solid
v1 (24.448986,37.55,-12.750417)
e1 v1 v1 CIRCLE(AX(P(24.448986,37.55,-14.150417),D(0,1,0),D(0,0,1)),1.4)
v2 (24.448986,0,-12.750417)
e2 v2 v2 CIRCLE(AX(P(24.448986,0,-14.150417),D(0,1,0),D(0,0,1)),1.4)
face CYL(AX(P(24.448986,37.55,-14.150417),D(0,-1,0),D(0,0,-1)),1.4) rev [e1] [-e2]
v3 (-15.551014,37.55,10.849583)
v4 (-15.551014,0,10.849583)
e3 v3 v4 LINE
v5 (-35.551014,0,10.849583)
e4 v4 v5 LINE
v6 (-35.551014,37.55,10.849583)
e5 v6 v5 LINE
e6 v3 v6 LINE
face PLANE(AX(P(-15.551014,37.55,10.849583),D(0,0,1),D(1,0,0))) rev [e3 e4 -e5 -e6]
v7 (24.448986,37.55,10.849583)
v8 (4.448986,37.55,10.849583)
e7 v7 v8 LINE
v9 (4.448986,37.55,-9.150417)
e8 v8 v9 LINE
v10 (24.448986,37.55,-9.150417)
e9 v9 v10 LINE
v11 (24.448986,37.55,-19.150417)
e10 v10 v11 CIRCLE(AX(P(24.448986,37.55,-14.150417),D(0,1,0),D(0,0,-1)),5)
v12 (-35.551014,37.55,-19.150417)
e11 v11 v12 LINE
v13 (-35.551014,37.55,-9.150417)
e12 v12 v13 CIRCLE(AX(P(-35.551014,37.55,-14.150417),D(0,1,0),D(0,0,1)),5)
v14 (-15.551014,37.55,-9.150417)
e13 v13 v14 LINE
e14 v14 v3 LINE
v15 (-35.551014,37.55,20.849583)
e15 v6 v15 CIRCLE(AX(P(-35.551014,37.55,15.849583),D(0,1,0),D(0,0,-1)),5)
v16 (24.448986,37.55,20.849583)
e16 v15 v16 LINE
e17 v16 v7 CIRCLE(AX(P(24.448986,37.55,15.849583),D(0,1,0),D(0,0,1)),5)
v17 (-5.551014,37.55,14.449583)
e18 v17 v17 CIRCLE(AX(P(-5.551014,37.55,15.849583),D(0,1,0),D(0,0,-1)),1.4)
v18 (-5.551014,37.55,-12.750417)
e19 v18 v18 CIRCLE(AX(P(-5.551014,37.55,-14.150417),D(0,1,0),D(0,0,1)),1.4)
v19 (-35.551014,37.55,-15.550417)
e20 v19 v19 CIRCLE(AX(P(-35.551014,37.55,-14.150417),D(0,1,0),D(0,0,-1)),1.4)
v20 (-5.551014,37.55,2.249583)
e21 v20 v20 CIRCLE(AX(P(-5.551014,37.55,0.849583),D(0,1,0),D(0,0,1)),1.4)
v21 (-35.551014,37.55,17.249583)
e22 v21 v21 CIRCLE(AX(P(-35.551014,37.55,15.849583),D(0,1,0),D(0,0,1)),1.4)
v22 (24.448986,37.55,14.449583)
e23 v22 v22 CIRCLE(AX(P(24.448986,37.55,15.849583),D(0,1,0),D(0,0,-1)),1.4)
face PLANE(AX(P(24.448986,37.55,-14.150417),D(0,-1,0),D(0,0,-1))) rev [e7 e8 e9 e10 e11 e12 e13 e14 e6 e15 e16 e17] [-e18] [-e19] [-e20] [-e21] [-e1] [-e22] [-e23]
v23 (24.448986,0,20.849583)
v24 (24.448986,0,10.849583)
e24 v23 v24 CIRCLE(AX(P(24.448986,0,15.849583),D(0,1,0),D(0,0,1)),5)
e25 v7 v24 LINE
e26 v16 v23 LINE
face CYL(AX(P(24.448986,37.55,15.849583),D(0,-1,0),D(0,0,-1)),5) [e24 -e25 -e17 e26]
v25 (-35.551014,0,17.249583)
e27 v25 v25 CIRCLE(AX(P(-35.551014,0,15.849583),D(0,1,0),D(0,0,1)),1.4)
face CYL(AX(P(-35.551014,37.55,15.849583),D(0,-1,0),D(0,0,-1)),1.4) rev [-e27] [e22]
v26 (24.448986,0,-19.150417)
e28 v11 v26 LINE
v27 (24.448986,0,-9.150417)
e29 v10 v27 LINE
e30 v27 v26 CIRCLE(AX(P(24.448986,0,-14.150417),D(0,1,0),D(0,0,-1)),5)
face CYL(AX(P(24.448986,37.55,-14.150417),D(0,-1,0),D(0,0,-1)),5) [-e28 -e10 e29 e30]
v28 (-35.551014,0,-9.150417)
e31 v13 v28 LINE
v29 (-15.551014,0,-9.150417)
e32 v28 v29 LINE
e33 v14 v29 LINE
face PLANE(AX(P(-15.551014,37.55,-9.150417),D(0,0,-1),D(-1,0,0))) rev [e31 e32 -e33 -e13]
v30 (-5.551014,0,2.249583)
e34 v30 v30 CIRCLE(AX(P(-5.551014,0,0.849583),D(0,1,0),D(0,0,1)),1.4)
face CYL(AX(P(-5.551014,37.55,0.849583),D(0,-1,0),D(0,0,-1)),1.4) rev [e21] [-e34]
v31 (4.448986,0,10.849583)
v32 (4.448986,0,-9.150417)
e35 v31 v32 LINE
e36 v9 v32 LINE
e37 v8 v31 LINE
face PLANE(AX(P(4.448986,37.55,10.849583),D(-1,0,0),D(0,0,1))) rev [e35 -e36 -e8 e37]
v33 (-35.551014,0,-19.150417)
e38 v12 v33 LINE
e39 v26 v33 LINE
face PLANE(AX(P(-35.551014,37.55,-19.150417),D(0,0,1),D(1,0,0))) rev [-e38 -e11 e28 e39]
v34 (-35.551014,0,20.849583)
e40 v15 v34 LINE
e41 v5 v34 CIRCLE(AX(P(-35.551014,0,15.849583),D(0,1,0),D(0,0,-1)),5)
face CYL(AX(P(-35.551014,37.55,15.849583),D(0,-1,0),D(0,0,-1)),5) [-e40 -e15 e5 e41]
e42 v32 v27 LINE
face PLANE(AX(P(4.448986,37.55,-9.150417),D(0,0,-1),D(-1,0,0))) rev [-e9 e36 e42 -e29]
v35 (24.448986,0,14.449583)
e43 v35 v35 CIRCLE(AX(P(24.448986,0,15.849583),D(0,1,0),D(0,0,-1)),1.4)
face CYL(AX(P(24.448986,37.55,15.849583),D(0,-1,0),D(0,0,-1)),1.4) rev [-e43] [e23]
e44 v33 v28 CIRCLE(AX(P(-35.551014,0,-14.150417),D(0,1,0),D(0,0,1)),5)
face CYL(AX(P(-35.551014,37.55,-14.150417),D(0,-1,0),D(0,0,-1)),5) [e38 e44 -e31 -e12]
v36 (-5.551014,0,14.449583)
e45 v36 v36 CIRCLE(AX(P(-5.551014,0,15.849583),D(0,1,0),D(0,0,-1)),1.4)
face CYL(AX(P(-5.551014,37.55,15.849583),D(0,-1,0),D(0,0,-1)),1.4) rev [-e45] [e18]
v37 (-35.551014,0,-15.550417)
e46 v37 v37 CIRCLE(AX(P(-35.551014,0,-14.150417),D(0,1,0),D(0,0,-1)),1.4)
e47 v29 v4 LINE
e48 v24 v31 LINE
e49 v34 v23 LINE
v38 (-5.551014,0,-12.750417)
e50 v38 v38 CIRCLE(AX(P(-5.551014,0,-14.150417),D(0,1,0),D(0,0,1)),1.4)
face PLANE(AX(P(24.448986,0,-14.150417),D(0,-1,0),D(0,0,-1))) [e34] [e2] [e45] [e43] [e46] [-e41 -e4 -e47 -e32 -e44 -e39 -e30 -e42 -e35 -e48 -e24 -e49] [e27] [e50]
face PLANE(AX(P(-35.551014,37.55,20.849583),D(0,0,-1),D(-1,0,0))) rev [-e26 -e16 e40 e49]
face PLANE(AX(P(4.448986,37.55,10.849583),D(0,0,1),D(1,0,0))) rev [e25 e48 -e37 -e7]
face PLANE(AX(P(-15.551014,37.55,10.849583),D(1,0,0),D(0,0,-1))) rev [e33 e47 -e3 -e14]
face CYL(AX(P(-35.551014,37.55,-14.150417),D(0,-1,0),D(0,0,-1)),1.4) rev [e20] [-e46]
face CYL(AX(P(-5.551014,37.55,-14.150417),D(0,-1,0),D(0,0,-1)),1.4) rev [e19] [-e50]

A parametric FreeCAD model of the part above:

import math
import FreeCAD as App
import Part
import Sketcher

doc = App.newDocument("Part")
body = doc.addObject("PartDesign::Body", "Body")

# Sketch on XZ plane
sketch1 = doc.addObject("Sketcher::SketchObject", "Sketch")
body.addObject(sketch1)
sketch1.AttachmentSupport = (doc.XZ_Plane, [""])
sketch1.MapMode = "FlatFace"
sketch1.addGeometry(Part.LineSegment(App.Vector(4.448986, 10.849583, 0), App.Vector(4.448986, -9.150417, 0)), False)
sketch1.addGeometry(Part.LineSegment(App.Vector(4.448986, -9.150417, 0), App.Vector(24.448986, -9.150417, 0)), False)
sketch1.addGeometry(Part.ArcOfCircle(Part.Circle(App.Vector(24.448986, -14.150417, 0), App.Vector(0, 0, 1), 5), math.radians(-90), math.radians(90)), False)
sketch1.addGeometry(Part.LineSegment(App.Vector(24.448986, -19.150417, 0), App.Vector(-35.551014, -19.150417, 0)), False)
sketch1.addGeometry(Part.ArcOfCircle(Part.Circle(App.Vector(-35.551014, -14.150417, 0), App.Vector(0, 0, 1), 5), math.radians(90), math.radians(270)), False)
sketch1.addGeometry(Part.LineSegment(App.Vector(-35.551014, -9.150417, 0), App.Vector(-15.551014, -9.150417, 0)), False)
sketch1.addGeometry(Part.LineSegment(App.Vector(-15.551014, -9.150417, 0), App.Vector(-15.551014, 10.849583, 0)), False)
sketch1.addGeometry(Part.LineSegment(App.Vector(-15.551014, 10.849583, 0), App.Vector(-35.551014, 10.849583, 0)), False)
sketch1.addGeometry(Part.ArcOfCircle(Part.Circle(App.Vector(-35.551014, 15.849583, 0), App.Vector(0, 0, 1), 5), math.radians(90), math.radians(270)), False)
sketch1.addGeometry(Part.LineSegment(App.Vector(-35.551014, 20.849583, 0), App.Vector(24.448986, 20.849583, 0)), False)
sketch1.addGeometry(Part.ArcOfCircle(Part.Circle(App.Vector(24.448986, 15.849583, 0), App.Vector(0, 0, 1), 5), math.radians(-90), math.radians(90)), False)
sketch1.addGeometry(Part.LineSegment(App.Vector(24.448986, 10.849583, 0), App.Vector(4.448986, 10.849583, 0)), False)
sketch1.addGeometry(Part.Circle(App.Vector(-35.551014, 15.849583, 0), App.Vector(0, 0, 1), 1.4), False)
sketch1.addGeometry(Part.Circle(App.Vector(-5.551014, 15.849583, 0), App.Vector(0, 0, 1), 1.4), False)
sketch1.addGeometry(Part.Circle(App.Vector(24.448986, 15.849583, 0), App.Vector(0, 0, 1), 1.4), False)
sketch1.addGeometry(Part.Circle(App.Vector(-35.551014, -14.150417, 0), App.Vector(0, 0, 1), 1.4), False)
sketch1.addGeometry(Part.Circle(App.Vector(-5.551014, 0.849583, 0), App.Vector(0, 0, 1), 1.4), False)
sketch1.addGeometry(Part.Circle(App.Vector(-5.551014, -14.150417, 0), App.Vector(0, 0, 1), 1.4), False)
sketch1.addGeometry(Part.Circle(App.Vector(24.448986, -14.150417, 0), App.Vector(0, 0, 1), 1.4), False)
sketch1.addConstraint(Sketcher.Constraint("Coincident", 0, 2, 1, 1))
sketch1.addConstraint(Sketcher.Constraint("Tangent", 1, 2, 2, 2))
sketch1.addConstraint(Sketcher.Constraint("Tangent", 2, 1, 3, 1))
sketch1.addConstraint(Sketcher.Constraint("Tangent", 3, 2, 4, 2))
sketch1.addConstraint(Sketcher.Constraint("Tangent", 4, 1, 5, 1))
sketch1.addConstraint(Sketcher.Constraint("Coincident", 5, 2, 6, 1))
sketch1.addConstraint(Sketcher.Constraint("Coincident", 6, 2, 7, 1))
sketch1.addConstraint(Sketcher.Constraint("Tangent", 7, 2, 8, 2))
sketch1.addConstraint(Sketcher.Constraint("Tangent", 8, 1, 9, 1))
sketch1.addConstraint(Sketcher.Constraint("Tangent", 9, 2, 10, 2))
sketch1.addConstraint(Sketcher.Constraint("Tangent", 10, 1, 11, 1))
sketch1.addConstraint(Sketcher.Constraint("Coincident", 11, 2, 0, 1))
sketch1.addConstraint(Sketcher.Constraint("Vertical", 0))
sketch1.addConstraint(Sketcher.Constraint("Horizontal", 1))
sketch1.addConstraint(Sketcher.Constraint("Horizontal", 3))
sketch1.addConstraint(Sketcher.Constraint("Horizontal", 5))
sketch1.addConstraint(Sketcher.Constraint("Vertical", 6))
sketch1.addConstraint(Sketcher.Constraint("Horizontal", 7))
sketch1.addConstraint(Sketcher.Constraint("Horizontal", 9))
sketch1.addConstraint(Sketcher.Constraint("Horizontal", 11))
sketch1.addConstraint(Sketcher.Constraint("Coincident", 12, 3, 8, 3))
sketch1.addConstraint(Sketcher.Constraint("Coincident", 14, 3, 10, 3))
sketch1.addConstraint(Sketcher.Constraint("Coincident", 15, 3, 4, 3))
sketch1.addConstraint(Sketcher.Constraint("Coincident", 18, 3, 2, 3))
sketch1.addConstraint(Sketcher.Constraint("Equal", 2, 4))
sketch1.addConstraint(Sketcher.Constraint("Equal", 4, 8))
sketch1.addConstraint(Sketcher.Constraint("Equal", 8, 10))
sketch1.addConstraint(Sketcher.Constraint("Equal", 12, 13))
sketch1.addConstraint(Sketcher.Constraint("Equal", 13, 14))
sketch1.addConstraint(Sketcher.Constraint("Equal", 14, 15))
sketch1.addConstraint(Sketcher.Constraint("Equal", 15, 16))
sketch1.addConstraint(Sketcher.Constraint("Equal", 16, 17))
sketch1.addConstraint(Sketcher.Constraint("Equal", 17, 18))
sketch1.addConstraint(Sketcher.Constraint("Horizontal", 12, 3, 13, 3))
sketch1.addConstraint(Sketcher.Constraint("Horizontal", 15, 3, 17, 3))
sketch1.addConstraint(Sketcher.Constraint("Vertical", 4, 3, 8, 3))
sketch1.addConstraint(Sketcher.Constraint("Vertical", 2, 3, 10, 3))
sketch1.addConstraint(Sketcher.Constraint("Vertical", 13, 3, 16, 3))
sketch1.addConstraint(Sketcher.Constraint("Vertical", 16, 3, 17, 3))
sketch1.addConstraint(Sketcher.Constraint("Equal", 1, 5))
sketch1.addConstraint(Sketcher.Constraint("Equal", 11, 0))
sketch1.addConstraint(Sketcher.Constraint("Radius", 2, 5.0))
sketch1.addConstraint(Sketcher.Constraint("Diameter", 12, 2.8))
sketch1.addConstraint(Sketcher.Constraint("DistanceX", 1, 1, 1, 2, 20.0))
sketch1.addConstraint(Sketcher.Constraint("DistanceX", 3, 2, 3, 1, 60.0))
sketch1.addConstraint(Sketcher.Constraint("DistanceX", 8, 3, 13, 3, 30.0))
sketch1.addConstraint(Sketcher.Constraint("DistanceY", 16, 3, 13, 3, 15.0))
sketch1.addConstraint(Sketcher.Constraint("DistanceX", -1, 1, 2, 3, 24.448986))
sketch1.addConstraint(Sketcher.Constraint("DistanceY", 2, 3, -1, 1, 14.150417))
pad1 = doc.addObject("PartDesign::Pad", "Pad")
body.addObject(pad1)
pad1.Profile = sketch1
pad1.Length = 37.55
pad1.Reversed = True

doc.recompute()
